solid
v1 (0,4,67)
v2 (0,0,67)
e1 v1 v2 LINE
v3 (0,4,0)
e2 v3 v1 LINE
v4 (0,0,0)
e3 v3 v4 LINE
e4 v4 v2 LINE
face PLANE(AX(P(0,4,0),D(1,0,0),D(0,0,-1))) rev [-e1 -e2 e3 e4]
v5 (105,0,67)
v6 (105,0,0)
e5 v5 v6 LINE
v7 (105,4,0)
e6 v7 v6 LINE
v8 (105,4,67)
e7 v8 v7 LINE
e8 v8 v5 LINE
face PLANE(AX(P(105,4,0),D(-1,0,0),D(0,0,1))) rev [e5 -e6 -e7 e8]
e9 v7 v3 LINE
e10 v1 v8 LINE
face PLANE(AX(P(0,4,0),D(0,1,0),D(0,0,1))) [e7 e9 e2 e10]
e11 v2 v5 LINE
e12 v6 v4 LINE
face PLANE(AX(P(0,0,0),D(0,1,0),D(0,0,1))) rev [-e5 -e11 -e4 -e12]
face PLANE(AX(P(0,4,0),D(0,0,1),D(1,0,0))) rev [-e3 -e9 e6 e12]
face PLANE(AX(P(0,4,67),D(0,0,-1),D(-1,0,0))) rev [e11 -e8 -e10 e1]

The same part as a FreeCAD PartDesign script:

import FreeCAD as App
import Part
import Sketcher


def add_polygon(sketch, points):
    """Adds a closed chain of lines whose ends are joined by coincident constraints."""
    first, n = sketch.GeometryCount, len(points)
    for a, b in zip(points, points[1:] + points[:1]):
        sketch.addGeometry(Part.LineSegment(App.Vector(*a, 0), App.Vector(*b, 0)), False)
    for i in range(n):
        sketch.addConstraint(Sketcher.Constraint("Coincident", first + i, 2, first + (i + 1) % n, 1))

doc = App.newDocument("Part")
params = doc.addObject("Spreadsheet::Sheet", "Params")
for row, (alias, value) in enumerate([
    ("sketch1_width", "105 mm"),
    ("sketch1_height", "67 mm"),
    ("pad1_length", "4 mm"),
], start=1):
    params.set(f"A{row}", alias)
    params.set(f"B{row}", "=" + value)
    params.setAlias(f"B{row}", alias)

body = doc.addObject("PartDesign::Body", "Body")

# Sketch on XZ plane
sketch1 = body.newObject("Sketcher::SketchObject", "Sketch")
sketch1.AttachmentSupport = (doc.getObject("XZ_Plane"), [""])
sketch1.MapMode = "FlatFace"
add_polygon(sketch1, [(0, 0), (0, 67), (105, 67), (105, 0)])  # lines 0-3
sketch1.addConstraint([
    Sketcher.Constraint("Vertical", 0),
    Sketcher.Constraint("Horizontal", 1),
    Sketcher.Constraint("Vertical", 2),
    Sketcher.Constraint("Horizontal", 3),
    Sketcher.Constraint("Coincident", 3, 2, -1, 1),
    Sketcher.Constraint("DistanceX", 1, 1, 1, 2, 105.0),
    Sketcher.Constraint("DistanceY", 0, 1, 0, 2, 67.0),
])
sketch1.setExpression("Constraints[9]", "Params.sketch1_width")
sketch1.setExpression("Constraints[10]", "Params.sketch1_height")
pad1 = body.newObject("PartDesign::Pad", "Pad")
pad1.Profile = sketch1
pad1.setExpression("Length", "Params.pad1_length")
pad1.Reversed = True

doc.recompute()
